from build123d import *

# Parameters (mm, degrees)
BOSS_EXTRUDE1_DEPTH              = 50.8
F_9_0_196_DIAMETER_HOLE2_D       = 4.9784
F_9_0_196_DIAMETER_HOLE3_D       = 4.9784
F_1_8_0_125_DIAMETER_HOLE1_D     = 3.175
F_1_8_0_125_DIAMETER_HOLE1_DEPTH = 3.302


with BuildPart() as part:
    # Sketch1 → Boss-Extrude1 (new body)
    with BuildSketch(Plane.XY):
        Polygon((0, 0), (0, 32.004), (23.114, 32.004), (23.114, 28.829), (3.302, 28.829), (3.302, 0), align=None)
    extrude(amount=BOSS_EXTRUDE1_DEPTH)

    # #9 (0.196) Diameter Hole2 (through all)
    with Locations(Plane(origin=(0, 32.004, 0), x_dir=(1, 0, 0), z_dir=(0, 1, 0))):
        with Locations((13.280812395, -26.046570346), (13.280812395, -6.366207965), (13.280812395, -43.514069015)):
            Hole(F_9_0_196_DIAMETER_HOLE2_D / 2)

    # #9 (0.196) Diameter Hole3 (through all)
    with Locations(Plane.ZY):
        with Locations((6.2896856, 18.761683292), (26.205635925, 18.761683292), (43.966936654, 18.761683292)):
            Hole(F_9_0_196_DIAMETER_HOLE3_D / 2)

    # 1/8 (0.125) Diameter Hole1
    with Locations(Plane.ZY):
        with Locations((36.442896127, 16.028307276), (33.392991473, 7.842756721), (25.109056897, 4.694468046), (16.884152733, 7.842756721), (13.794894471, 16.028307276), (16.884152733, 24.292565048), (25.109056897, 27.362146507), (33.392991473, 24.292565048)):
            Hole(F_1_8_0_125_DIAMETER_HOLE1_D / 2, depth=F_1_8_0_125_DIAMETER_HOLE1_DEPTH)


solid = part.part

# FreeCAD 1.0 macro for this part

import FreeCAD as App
import Part
import Sketcher

V = App.Vector
Q = App.Units.Quantity


def add_polygon(sketch, points):
    """Adds a closed chain of lines whose ends are joined by coincident constraints."""
    first, n = sketch.GeometryCount, len(points)
    for a, b in zip(points, points[1:] + points[:1]):
        sketch.addGeometry(Part.LineSegment(App.Vector(*a, 0), App.Vector(*b, 0)), False)
    for i in range(n):
        sketch.addConstraint(Sketcher.Constraint("Coincident", first + i, 2, first + (i + 1) % n, 1))

doc = App.newDocument("Part")
params = doc.addObject("Spreadsheet::Sheet", "Params")
for row, (alias, value) in enumerate([
    ("sketch1_width", "0.13 in"),
    ("sketch1_width2", "0.78 in"),
    ("sketch1_height", "1.26 in"),
    ("sketch1_height2", "1.135 in"),
    ("pad1_length", "2 in"),
    ("sketch2_diameter", "0.196 in"),
    ("hole_diameter", "0.196 in"),
    ("sketch3_diameter", "0.196 in"),
    ("hole2_diameter", "0.196 in"),
    ("sketch4_diameter", "0.125 in"),
    ("hole3_diameter", "0.125 in"),
    ("hole3_depth", "0.13 in"),
], start=1):
    params.set(f"A{row}", alias)
    params.set(f"B{row}", "=" + value)
    params.setAlias(f"B{row}", alias)

body = doc.addObject("PartDesign::Body", "Body")

# Sketch on XY plane
sketch1 = body.newObject("Sketcher::SketchObject", "Sketch")
sketch1.AttachmentSupport = (doc.getObject("XY_Plane"), [""])
sketch1.MapMode = "FlatFace"
add_polygon(sketch1, [(0, 32), (0, 0), (3.3, 0), (3.3, 28.8), (23.1, 28.8), (23.1, 32)])  # lines 0-5
sketch1.addConstraint(Sketcher.Constraint("Vertical", 0))
sketch1.addConstraint(Sketcher.Constraint("Horizontal", 1))
sketch1.addConstraint(Sketcher.Constraint("Vertical", 2))
sketch1.addConstraint(Sketcher.Constraint("Horizontal", 3))
sketch1.addConstraint(Sketcher.Constraint("Vertical", 4))
sketch1.addConstraint(Sketcher.Constraint("Horizontal", 5))
sketch1.addConstraint(Sketcher.Constraint("Coincident", 0, 2, -1, 1))
sketch1.addConstraint(Sketcher.Constraint("DistanceX", 1, 1, 1, 2, Q("0.13 in")))
sketch1.addConstraint(Sketcher.Constraint("DistanceX", 3, 1, 3, 2, Q("0.78 in")))
sketch1.addConstraint(Sketcher.Constraint("DistanceY", 0, 2, 0, 1, Q("1.26 in")))
sketch1.addConstraint(Sketcher.Constraint("DistanceY", 2, 1, 2, 2, Q("1.135 in")))
sketch1.setExpression("Constraints[13]", "Params.sketch1_width")
sketch1.setExpression("Constraints[14]", "Params.sketch1_width2")
sketch1.setExpression("Constraints[15]", "Params.sketch1_height")
sketch1.setExpression("Constraints[16]", "Params.sketch1_height2")
pad1 = body.newObject("PartDesign::Pad", "Pad")
pad1.Profile = sketch1
pad1.setExpression("Length", "Params.pad1_length")

# Sketch on XZ plane
sketch2 = body.newObject("Sketcher::SketchObject", "Sketch001")
sketch2.AttachmentSupport = (doc.getObject("XZ_Plane"), [""])
sketch2.MapMode = "FlatFace"
sketch2.AttachmentOffset = App.Placement(V(0, 0, -1.26 * 25.4), App.Rotation())
sketch2.addGeometry(Part.Circle(V(13.3, 26, 0), V(0, 0, 1), 2.5), False)
sketch2.addGeometry(Part.Circle(V(13.3, 6.4, 0), V(0, 0, 1), 2.5), False)
sketch2.addGeometry(Part.Circle(V(13.3, 43.5, 0), V(0, 0, 1), 2.5), False)
sketch2.addConstraint(Sketcher.Constraint("Equal", 0, 1))
sketch2.addConstraint(Sketcher.Constraint("Equal", 1, 2))
sketch2.addConstraint(Sketcher.Constraint("Vertical", 0, 3, 1, 3))
sketch2.addConstraint(Sketcher.Constraint("Vertical", 1, 3, 2, 3))
sketch2.addConstraint(Sketcher.Constraint("Diameter", 0, Q("0.196 in")))
sketch2.addConstraint(Sketcher.Constraint("DistanceY", 0, 3, 2, 3, Q("17.467499 mm")))
sketch2.addConstraint(Sketcher.Constraint("DistanceY", -1, 1, 0, 3, Q("26.04657 mm")))
sketch2.addConstraint(Sketcher.Constraint("DistanceY", 1, 3, 2, 3, Q("37.147861 mm")))
sketch2.addConstraint(Sketcher.Constraint("DistanceX", -1, 1, 0, 3, Q("13.280812 mm")))
sketch2.setExpression("Constraints[4]", "Params.sketch2_diameter")
doc.recompute()
hole = body.newObject("PartDesign::Hole", "Hole")
hole.Profile = sketch2
hole.ThreadType = "None"
hole.setExpression("Diameter", "Params.hole_diameter")
hole.DepthType = "ThroughAll"
hole.Reversed = True

# Sketch on YZ plane
sketch3 = body.newObject("Sketcher::SketchObject", "Sketch002")
sketch3.AttachmentSupport = (doc.getObject("YZ_Plane"), [""])
sketch3.MapMode = "FlatFace"
sketch3.addGeometry(Part.Circle(V(18.8, 6.3, 0), V(0, 0, 1), 2.5), False)
sketch3.addGeometry(Part.Circle(V(18.8, 26.2, 0), V(0, 0, 1), 2.5), False)
sketch3.addGeometry(Part.Circle(V(18.8, 44, 0), V(0, 0, 1), 2.5), False)
sketch3.addConstraint(Sketcher.Constraint("Equal", 0, 1))
sketch3.addConstraint(Sketcher.Constraint("Equal", 1, 2))
sketch3.addConstraint(Sketcher.Constraint("Vertical", 0, 3, 1, 3))
sketch3.addConstraint(Sketcher.Constraint("Vertical", 1, 3, 2, 3))
sketch3.addConstraint(Sketcher.Constraint("Diameter", 0, Q("0.196 in")))
sketch3.addConstraint(Sketcher.Constraint("DistanceY", 1, 3, 2, 3, Q("17.761301 mm")))
sketch3.addConstraint(Sketcher.Constraint("DistanceY", 0, 3, 1, 3, Q("19.91595 mm")))
sketch3.addConstraint(Sketcher.Constraint("DistanceX", -1, 1, 0, 3, Q("18.761683 mm")))
sketch3.addConstraint(Sketcher.Constraint("DistanceY", -1, 1, 0, 3, Q("6.289686 mm")))
sketch3.setExpression("Constraints[4]", "Params.sketch3_diameter")
doc.recompute()
hole2 = body.newObject("PartDesign::Hole", "Hole001")
hole2.Profile = sketch3
hole2.ThreadType = "None"
hole2.setExpression("Diameter", "Params.hole2_diameter")
hole2.DepthType = "ThroughAll"
hole2.Reversed = True

# Sketch on YZ plane
sketch4 = body.newObject("Sketcher::SketchObject", "Sketch003")
sketch4.AttachmentSupport = (doc.getObject("YZ_Plane"), [""])
sketch4.MapMode = "FlatFace"
sketch4.addGeometry(Part.Circle(V(16, 36.4, 0), V(0, 0, 1), 1.6), False)
sketch4.addGeometry(Part.Circle(V(7.8, 33.4, 0), V(0, 0, 1), 1.6), False)
sketch4.addGeometry(Part.Circle(V(4.7, 25.1, 0), V(0, 0, 1), 1.6), False)
sketch4.addGeometry(Part.Circle(V(7.8, 16.9, 0), V(0, 0, 1), 1.6), False)
sketch4.addGeometry(Part.Circle(V(16, 13.8, 0), V(0, 0, 1), 1.6), False)
sketch4.addGeometry(Part.Circle(V(24.3, 16.9, 0), V(0, 0, 1), 1.6), False)
sketch4.addGeometry(Part.Circle(V(27.4, 25.1, 0), V(0, 0, 1), 1.6), False)
sketch4.addGeometry(Part.Circle(V(24.3, 33.4, 0), V(0, 0, 1), 1.6), False)
sketch4.addConstraint(Sketcher.Constraint("Equal", 0, 1))
sketch4.addConstraint(Sketcher.Constraint("Equal", 1, 2))
sketch4.addConstraint(Sketcher.Constraint("Equal", 2, 3))
sketch4.addConstraint(Sketcher.Constraint("Equal", 3, 4))
sketch4.addConstraint(Sketcher.Constraint("Equal", 4, 5))
sketch4.addConstraint(Sketcher.Constraint("Equal", 5, 6))
sketch4.addConstraint(Sketcher.Constraint("Equal", 6, 7))
sketch4.addConstraint(Sketcher.Constraint("Horizontal", 3, 3, 5, 3))
sketch4.addConstraint(Sketcher.Constraint("Horizontal", 2, 3, 6, 3))
sketch4.addConstraint(Sketcher.Constraint("Horizontal", 1, 3, 7, 3))
sketch4.addConstraint(Sketcher.Constraint("Vertical", 1, 3, 3, 3))
sketch4.addConstraint(Sketcher.Constraint("Vertical", 0, 3, 4, 3))
sketch4.addConstraint(Sketcher.Constraint("Vertical", 5, 3, 7, 3))
sketch4.addConstraint(Sketcher.Constraint("Diameter", 0, Q("0.125 in")))
sketch4.addConstraint(Sketcher.Constraint("DistanceX", -1, 1, 5, 3, Q("0.9564002 in")))
sketch4.addConstraint(Sketcher.Constraint("DistanceY", 4, 3, 0, 3, Q("22.648002 mm")))
sketch4.addConstraint(Sketcher.Constraint("DistanceY", -1, 1, 1, 3, Q("33.392991 mm")))
sketch4.addConstraint(Sketcher.Constraint("DistanceX", -1, 1, 2, 3, Q("4.694468 mm")))
sketch4.addConstraint(Sketcher.Constraint("DistanceX", 1, 3, 0, 3, Q("8.185551 mm")))
sketch4.addConstraint(Sketcher.Constraint("DistanceX", 2, 3, 1, 3, Q("3.148289 mm")))
sketch4.addConstraint(Sketcher.Constraint("DistanceY", 2, 3, 0, 3, Q("11.333839 mm")))
sketch4.addConstraint(Sketcher.Constraint("DistanceY", 3, 3, 1, 3, Q("16.508839 mm")))
sketch4.addConstraint(Sketcher.Constraint("DistanceY", 4, 3, 3, 3, Q("3.089258 mm")))
sketch4.addConstraint(Sketcher.Constraint("DistanceX", 5, 3, 6, 3, Q("3.069581 mm")))
sketch4.setExpression("Constraints[13]", "Params.sketch4_diameter")
doc.recompute()
hole3 = body.newObject("PartDesign::Hole", "Hole002")
hole3.Profile = sketch4
hole3.ThreadType = "None"
hole3.setExpression("Diameter", "Params.hole3_diameter")
hole3.DepthType = "Dimension"
hole3.setExpression("Depth", "Params.hole3_depth")
hole3.DrillPoint = "Flat"
hole3.Reversed = True

doc.recompute()
